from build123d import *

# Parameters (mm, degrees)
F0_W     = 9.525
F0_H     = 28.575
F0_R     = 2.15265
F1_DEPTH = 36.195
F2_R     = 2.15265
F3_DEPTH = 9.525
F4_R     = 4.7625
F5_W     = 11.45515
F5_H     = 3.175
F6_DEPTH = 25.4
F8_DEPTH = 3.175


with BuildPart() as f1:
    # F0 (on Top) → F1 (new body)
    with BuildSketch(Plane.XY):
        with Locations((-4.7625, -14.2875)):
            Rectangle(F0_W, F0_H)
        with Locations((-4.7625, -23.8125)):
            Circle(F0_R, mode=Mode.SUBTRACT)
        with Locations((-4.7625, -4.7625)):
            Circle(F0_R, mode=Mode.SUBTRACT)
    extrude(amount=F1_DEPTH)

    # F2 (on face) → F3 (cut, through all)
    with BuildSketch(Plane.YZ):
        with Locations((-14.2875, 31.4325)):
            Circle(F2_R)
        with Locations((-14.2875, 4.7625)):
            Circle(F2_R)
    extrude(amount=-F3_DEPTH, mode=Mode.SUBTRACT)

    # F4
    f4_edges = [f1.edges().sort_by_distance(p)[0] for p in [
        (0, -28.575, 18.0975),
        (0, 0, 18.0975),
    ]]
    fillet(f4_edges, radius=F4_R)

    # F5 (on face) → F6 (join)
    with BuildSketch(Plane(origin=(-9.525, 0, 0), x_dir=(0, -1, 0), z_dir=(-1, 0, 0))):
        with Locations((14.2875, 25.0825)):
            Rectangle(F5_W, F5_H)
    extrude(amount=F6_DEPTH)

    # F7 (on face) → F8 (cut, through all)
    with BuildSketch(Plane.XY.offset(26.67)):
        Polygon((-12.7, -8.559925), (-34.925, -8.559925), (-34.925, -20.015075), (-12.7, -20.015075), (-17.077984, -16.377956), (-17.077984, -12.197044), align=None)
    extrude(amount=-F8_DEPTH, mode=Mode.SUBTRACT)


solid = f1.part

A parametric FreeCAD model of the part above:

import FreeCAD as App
import Part
import Sketcher
from FreeCAD import Vector
Q = App.Units.Quantity


def edges_at(feature, points):
    """Names of the edges that pass closest to the given points."""
    edges = feature.Shape.Edges
    near = lambda p: min(range(len(edges)), key=lambda i: edges[i].distToShape(Part.Vertex(*p))[0])
    return sorted({f"Edge{near(p) + 1}" for p in points})

doc = App.newDocument("Part")
body = doc.addObject("PartDesign::Body", "Body")

# Sketch on XY plane
sketch1 = doc.addObject("Sketcher::SketchObject", "Sketch")
body.addObject(sketch1)
sketch1.AttachmentSupport = (doc.XY_Plane, [""])
sketch1.MapMode = "FlatFace"
sketch1.addGeometry([
    Part.LineSegment(Vector(-9.5, 0, 0), Vector(-9.5, -28.6, 0)),  # 0
    Part.LineSegment(Vector(-9.5, -28.6, 0), Vector(0, -28.6, 0)),  # 1
    Part.LineSegment(Vector(0, -28.6, 0), Vector(0, 0, 0)),  # 2
    Part.LineSegment(Vector(0, 0, 0), Vector(-9.5, 0, 0)),  # 3
    Part.Circle(Vector(-4.8, -23.8, 0), Vector(0, 0, 1), 2.2),  # 4
    Part.Circle(Vector(-4.8, -4.8, 0), Vector(0, 0, 1), 2.2),  # 5
], False)
sketch1.addConstraint([
    Sketcher.Constraint("Coincident", 0, 2, 1, 1),
    Sketcher.Constraint("Coincident", 1, 2, 2, 1),
    Sketcher.Constraint("Coincident", 2, 2, 3, 1),
    Sketcher.Constraint("Coincident", 3, 2, 0, 1),
    Sketcher.Constraint("Vertical", 0),
    Sketcher.Constraint("Horizontal", 1),
    Sketcher.Constraint("Vertical", 2),
    Sketcher.Constraint("Horizontal", 3),
    Sketcher.Constraint("Coincident", 2, 2, -1, 1),
    Sketcher.Constraint("Equal", 4, 5),
    Sketcher.Constraint("Vertical", 4, 3, 5, 3),
    Sketcher.Constraint("Diameter", 4, Q("0.1695 in")),
    Sketcher.Constraint("DistanceX", 1, 1, 1, 2, Q("0.375 in")),
    Sketcher.Constraint("DistanceY", 0, 2, 0, 1, Q("1.125 in")),
    Sketcher.Constraint("DistanceY", 4, 3, 5, 3, Q("0.75 in")),
    Sketcher.Constraint("DistanceX", 4, 3, -1, 1, Q("0.1875 in")),
    Sketcher.Constraint("DistanceY", 4, 3, -1, 1, Q("0.9375 in")),
])
pad1 = doc.addObject("PartDesign::Pad", "Pad")
body.addObject(pad1)
pad1.Profile = sketch1
pad1.Length = Q("1.425 in")

# Sketch on YZ plane
sketch2 = doc.addObject("Sketcher::SketchObject", "Sketch001")
body.addObject(sketch2)
sketch2.AttachmentSupport = (doc.YZ_Plane, [""])
sketch2.MapMode = "FlatFace"
sketch2.addGeometry([
    Part.Circle(Vector(-14.3, 31.4, 0), Vector(0, 0, 1), 2.2),
    Part.Circle(Vector(-14.3, 4.8, 0), Vector(0, 0, 1), 2.2),
], False)
sketch2.addConstraint([
    Sketcher.Constraint("Equal", 0, 1),
    Sketcher.Constraint("Vertical", 0, 3, 1, 3),
    Sketcher.Constraint("Diameter", 0, Q("0.1695 in")),
    Sketcher.Constraint("DistanceY", 1, 3, 0, 3, Q("1.05 in")),
    Sketcher.Constraint("DistanceX", 0, 3, -1, 1, Q("0.5625 in")),
    Sketcher.Constraint("DistanceY", -1, 1, 1, 3, Q("0.1875 in")),
])
pocket1 = doc.addObject("PartDesign::Pocket", "Pocket")
body.addObject(pocket1)
pocket1.Profile = sketch2
pocket1.Type = "ThroughAll"
doc.recompute()

fillet = doc.addObject("PartDesign::Fillet", "Fillet")
body.addObject(fillet)
fillet.Base = (pocket1, edges_at(pocket1, [(0, -28.575, 18.098), (0, 0, 18.098)]))
fillet.Radius = Q("0.1875 in")

# Sketch on YZ plane
sketch3 = doc.addObject("Sketcher::SketchObject", "Sketch002")
body.addObject(sketch3)
sketch3.AttachmentSupport = (doc.YZ_Plane, [""])
sketch3.MapMode = "FlatFace"
sketch3.AttachmentOffset = App.Placement(Vector(0, 0, -0.375 * 25.4), App.Rotation())
sketch3.addGeometry([
    Part.LineSegment(Vector(-8.6, 26.7, 0), Vector(-8.6, 23.5, 0)),
    Part.LineSegment(Vector(-8.6, 23.5, 0), Vector(-20, 23.5, 0)),
    Part.LineSegment(Vector(-20, 23.5, 0), Vector(-20, 26.7, 0)),
    Part.LineSegment(Vector(-20, 26.7, 0), Vector(-8.6, 26.7, 0)),
], False)
sketch3.addConstraint([
    Sketcher.Constraint("Coincident", 0, 2, 1, 1),
    Sketcher.Constraint("Coincident", 1, 2, 2, 1),
    Sketcher.Constraint("Coincident", 2, 2, 3, 1),
    Sketcher.Constraint("Coincident", 3, 2, 0, 1),
    Sketcher.Constraint("Vertical", 0),
    Sketcher.Constraint("Horizontal", 1),
    Sketcher.Constraint("Vertical", 2),
    Sketcher.Constraint("Horizontal", 3),
    Sketcher.Constraint("DistanceY", 0, 2, 0, 1, Q("0.125 in")),
    Sketcher.Constraint("DistanceY", -1, 1, 2, 2, Q("1.05 in")),
    Sketcher.Constraint("DistanceX", 1, 2, 1, 1, 11.45515),
    Sketcher.Constraint("DistanceX", 0, 2, -1, 1, 8.559925),
])
pad2 = doc.addObject("PartDesign::Pad", "Pad001")
body.addObject(pad2)
pad2.Profile = sketch3
pad2.Length = Q("1 in")
pad2.Reversed = True

# Sketch on XY plane
sketch4 = doc.addObject("Sketcher::SketchObject", "Sketch003")
body.addObject(sketch4)
sketch4.AttachmentSupport = (doc.XY_Plane, [""])
sketch4.MapMode = "FlatFace"
sketch4.AttachmentOffset = App.Placement(Vector(0, 0, 1.05 * 25.4), App.Rotation())
sketch4.addGeometry([
    Part.LineSegment(Vector(-12.7, -8.6, 0), Vector(-34.9, -8.6, 0)),  # 0
    Part.LineSegment(Vector(-34.9, -8.6, 0), Vector(-34.9, -20, 0)),  # 1
    Part.LineSegment(Vector(-34.9, -20, 0), Vector(-12.7, -20, 0)),  # 2
    Part.LineSegment(Vector(-12.7, -20, 0), Vector(-17.1, -16.4, 0)),  # 3
    Part.LineSegment(Vector(-17.1, -16.4, 0), Vector(-17.1, -12.2, 0)),  # 4
    Part.LineSegment(Vector(-17.1, -12.2, 0), Vector(-12.7, -8.6, 0)),  # 5
], False)
sketch4.addConstraint([
    Sketcher.Constraint("Coincident", 0, 2, 1, 1),
    Sketcher.Constraint("Coincident", 1, 2, 2, 1),
    Sketcher.Constraint("Coincident", 2, 2, 3, 1),
    Sketcher.Constraint("Coincident", 3, 2, 4, 1),
    Sketcher.Constraint("Coincident", 4, 2, 5, 1),
    Sketcher.Constraint("Coincident", 5, 2, 0, 1),
    Sketcher.Constraint("Horizontal", 0),
    Sketcher.Constraint("Vertical", 1),
    Sketcher.Constraint("Horizontal", 2),
    Sketcher.Constraint("Vertical", 4),
    Sketcher.Constraint("Vertical", 2, 2, 5, 2),
    Sketcher.Constraint("Equal", 3, 5),
    Sketcher.Constraint("DistanceX", 2, 2, -1, 1, Q("0.5 in")),
    Sketcher.Constraint("DistanceX", 0, 2, 0, 1, Q("0.875 in")),
    Sketcher.Constraint("DistanceY", 1, 2, 1, 1, 11.45515),
    Sketcher.Constraint("DistanceY", 4, 1, 4, 2, 4.180912),
    Sketcher.Constraint("Distance", 3, 5.691694),
    Sketcher.Constraint("DistanceY", 0, 2, -1, 1, 8.559925),
])
pocket2 = doc.addObject("PartDesign::Pocket", "Pocket001")
body.addObject(pocket2)
pocket2.Profile = sketch4
pocket2.Type = "ThroughAll"

doc.recompute()
